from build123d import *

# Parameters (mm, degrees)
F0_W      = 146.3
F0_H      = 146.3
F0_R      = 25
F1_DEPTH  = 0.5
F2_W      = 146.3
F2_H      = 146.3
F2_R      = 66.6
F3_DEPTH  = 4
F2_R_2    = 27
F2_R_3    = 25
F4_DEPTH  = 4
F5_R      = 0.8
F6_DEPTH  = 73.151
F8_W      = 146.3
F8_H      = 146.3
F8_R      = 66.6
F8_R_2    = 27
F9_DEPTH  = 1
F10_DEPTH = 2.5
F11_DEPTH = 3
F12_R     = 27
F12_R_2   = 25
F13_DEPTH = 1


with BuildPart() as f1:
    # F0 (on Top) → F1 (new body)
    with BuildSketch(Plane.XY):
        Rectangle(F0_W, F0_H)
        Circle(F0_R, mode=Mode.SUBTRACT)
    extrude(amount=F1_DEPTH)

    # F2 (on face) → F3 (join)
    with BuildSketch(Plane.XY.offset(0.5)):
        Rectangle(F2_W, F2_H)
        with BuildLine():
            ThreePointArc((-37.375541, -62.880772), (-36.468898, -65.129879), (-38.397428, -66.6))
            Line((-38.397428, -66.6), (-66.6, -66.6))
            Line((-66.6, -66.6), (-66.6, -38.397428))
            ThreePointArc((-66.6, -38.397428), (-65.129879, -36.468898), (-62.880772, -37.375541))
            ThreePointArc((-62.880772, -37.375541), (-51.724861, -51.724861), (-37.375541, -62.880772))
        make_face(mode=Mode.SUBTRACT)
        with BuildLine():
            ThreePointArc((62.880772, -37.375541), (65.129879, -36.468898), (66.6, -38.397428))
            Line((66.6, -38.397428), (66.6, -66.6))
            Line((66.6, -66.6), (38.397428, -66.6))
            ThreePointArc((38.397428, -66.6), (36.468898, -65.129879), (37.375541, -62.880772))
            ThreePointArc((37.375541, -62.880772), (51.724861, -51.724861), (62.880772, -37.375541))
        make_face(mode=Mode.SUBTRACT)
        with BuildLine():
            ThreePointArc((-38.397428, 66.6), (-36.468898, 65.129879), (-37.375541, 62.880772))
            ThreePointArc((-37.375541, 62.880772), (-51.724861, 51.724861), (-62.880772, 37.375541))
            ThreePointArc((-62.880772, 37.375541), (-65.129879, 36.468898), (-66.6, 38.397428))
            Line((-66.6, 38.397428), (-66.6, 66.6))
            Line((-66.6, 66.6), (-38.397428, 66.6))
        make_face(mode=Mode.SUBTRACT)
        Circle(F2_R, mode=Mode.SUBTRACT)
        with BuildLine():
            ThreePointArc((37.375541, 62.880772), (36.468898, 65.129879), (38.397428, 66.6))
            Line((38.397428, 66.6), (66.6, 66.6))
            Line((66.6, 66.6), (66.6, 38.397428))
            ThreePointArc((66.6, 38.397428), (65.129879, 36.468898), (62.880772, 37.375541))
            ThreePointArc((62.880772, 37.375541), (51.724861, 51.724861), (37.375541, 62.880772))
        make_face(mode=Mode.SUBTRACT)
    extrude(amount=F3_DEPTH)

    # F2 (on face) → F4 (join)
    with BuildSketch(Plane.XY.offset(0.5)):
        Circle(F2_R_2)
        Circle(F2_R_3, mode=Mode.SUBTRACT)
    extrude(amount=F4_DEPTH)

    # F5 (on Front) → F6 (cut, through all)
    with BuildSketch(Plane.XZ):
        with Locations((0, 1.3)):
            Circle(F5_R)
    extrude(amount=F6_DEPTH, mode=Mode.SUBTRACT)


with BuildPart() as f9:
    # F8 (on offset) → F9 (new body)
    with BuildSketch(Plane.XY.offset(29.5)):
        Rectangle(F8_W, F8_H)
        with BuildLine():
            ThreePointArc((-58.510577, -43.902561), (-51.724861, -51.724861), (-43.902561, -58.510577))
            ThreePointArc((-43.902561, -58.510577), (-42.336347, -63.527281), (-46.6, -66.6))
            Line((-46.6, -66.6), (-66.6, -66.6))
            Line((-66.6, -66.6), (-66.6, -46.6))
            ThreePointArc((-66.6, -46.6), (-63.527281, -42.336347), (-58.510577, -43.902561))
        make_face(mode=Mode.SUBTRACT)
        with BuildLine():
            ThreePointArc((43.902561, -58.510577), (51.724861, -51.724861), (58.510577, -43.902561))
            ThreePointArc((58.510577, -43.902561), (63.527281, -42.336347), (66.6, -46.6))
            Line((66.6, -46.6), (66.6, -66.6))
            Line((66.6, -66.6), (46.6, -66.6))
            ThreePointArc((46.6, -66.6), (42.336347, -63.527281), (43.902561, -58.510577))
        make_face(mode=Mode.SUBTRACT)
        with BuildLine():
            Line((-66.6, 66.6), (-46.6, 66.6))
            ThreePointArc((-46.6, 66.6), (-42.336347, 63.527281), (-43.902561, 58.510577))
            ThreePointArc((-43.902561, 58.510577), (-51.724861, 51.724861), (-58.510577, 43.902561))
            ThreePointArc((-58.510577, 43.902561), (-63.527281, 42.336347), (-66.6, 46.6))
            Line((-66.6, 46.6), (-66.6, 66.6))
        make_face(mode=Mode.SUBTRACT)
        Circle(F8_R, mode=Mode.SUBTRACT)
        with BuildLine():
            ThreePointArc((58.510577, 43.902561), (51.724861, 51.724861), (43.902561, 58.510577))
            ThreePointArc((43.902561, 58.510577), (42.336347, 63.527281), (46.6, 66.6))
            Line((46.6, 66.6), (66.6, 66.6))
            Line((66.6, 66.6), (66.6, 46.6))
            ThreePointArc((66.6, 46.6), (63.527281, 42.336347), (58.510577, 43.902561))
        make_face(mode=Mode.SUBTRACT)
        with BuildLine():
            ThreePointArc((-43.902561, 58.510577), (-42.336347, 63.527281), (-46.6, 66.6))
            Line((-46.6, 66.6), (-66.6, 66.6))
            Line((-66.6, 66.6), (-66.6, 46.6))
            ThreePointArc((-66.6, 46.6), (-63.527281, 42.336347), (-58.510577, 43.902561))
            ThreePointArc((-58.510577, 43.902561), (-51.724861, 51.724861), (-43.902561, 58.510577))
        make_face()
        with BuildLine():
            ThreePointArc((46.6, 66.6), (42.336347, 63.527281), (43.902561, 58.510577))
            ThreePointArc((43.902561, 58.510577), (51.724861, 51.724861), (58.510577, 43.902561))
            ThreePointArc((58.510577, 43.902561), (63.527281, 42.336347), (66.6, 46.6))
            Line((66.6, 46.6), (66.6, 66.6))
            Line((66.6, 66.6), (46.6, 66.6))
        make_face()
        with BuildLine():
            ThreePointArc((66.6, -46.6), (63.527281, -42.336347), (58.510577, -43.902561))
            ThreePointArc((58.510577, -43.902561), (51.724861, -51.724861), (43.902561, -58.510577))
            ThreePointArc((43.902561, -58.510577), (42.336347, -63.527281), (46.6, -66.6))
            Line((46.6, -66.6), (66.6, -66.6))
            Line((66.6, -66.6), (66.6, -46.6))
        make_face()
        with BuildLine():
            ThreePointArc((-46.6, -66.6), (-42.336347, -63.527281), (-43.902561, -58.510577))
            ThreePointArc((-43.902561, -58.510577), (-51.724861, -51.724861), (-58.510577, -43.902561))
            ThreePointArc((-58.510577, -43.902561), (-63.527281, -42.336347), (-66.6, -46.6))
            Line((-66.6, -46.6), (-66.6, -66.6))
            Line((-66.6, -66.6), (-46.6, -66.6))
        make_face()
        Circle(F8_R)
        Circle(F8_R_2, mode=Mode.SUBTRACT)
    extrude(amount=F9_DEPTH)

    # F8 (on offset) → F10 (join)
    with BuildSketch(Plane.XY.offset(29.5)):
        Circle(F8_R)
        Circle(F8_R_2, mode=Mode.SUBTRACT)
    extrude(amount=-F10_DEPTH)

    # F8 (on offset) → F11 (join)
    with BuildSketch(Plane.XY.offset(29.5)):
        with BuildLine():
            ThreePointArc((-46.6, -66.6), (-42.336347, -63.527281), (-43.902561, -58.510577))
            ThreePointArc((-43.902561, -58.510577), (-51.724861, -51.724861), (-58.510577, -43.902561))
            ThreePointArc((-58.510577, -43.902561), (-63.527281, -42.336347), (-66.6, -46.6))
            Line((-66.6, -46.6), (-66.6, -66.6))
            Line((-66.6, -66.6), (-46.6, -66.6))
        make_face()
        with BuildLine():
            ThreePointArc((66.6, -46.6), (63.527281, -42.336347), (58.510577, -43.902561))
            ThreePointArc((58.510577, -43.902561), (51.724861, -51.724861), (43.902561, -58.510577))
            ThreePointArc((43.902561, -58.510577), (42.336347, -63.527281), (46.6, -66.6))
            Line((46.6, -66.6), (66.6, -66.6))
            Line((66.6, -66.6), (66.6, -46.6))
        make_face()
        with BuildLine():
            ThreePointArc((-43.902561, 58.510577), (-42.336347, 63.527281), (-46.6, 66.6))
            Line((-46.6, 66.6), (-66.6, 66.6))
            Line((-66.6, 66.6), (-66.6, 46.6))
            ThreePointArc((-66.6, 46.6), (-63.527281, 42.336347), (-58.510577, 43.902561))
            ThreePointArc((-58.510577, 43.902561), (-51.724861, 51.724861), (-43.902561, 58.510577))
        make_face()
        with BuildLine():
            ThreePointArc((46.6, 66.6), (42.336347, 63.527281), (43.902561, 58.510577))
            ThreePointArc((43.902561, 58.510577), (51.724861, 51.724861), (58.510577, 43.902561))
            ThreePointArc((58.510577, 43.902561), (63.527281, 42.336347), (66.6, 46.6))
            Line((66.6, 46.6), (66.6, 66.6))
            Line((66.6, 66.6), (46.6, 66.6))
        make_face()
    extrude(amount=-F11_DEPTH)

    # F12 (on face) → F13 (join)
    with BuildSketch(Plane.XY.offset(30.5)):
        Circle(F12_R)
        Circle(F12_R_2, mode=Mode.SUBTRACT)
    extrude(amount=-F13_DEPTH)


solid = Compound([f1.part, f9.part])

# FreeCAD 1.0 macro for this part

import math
import FreeCAD as App
import Part
import Sketcher
Q = App.Units.Quantity


def add_polygon(sketch, points):
    """Adds a closed chain of lines whose ends are joined by coincident constraints."""
    first, n = sketch.GeometryCount, len(points)
    for a, b in zip(points, points[1:] + points[:1]):
        sketch.addGeometry(Part.LineSegment(App.Vector(*a, 0), App.Vector(*b, 0)), False)
    for i in range(n):
        sketch.addConstraint(Sketcher.Constraint("Coincident", first + i, 2, first + (i + 1) % n, 1))

doc = App.newDocument("Part")
body = doc.addObject("PartDesign::Body", "Body")

sketch1 = body.newObject("Sketcher::SketchObject", "Sketch")
sketch1.AttachmentSupport = (doc.getObject("XY_Plane"), [""])
sketch1.MapMode = "FlatFace"
add_polygon(sketch1, [(-73, 73), (-73, -73), (73, -73), (73, 73)])
sketch1.addGeometry(Part.Circle(App.Vector(0, 0, 0), App.Vector(0, 0, 1), 25), False)
sketch1.addConstraint([
    Sketcher.Constraint("Vertical", 0),
    Sketcher.Constraint("Horizontal", 1),
    Sketcher.Constraint("Vertical", 2),
    Sketcher.Constraint("Horizontal", 3),
    Sketcher.Constraint("Coincident", 4, 3, -1, 1),
    Sketcher.Constraint("Symmetric", 0, 2, 2, 2, -1, 1),
    Sketcher.Constraint("Equal", 3, 0),
    Sketcher.Constraint("Diameter", 4, Q("50 mm")),
    Sketcher.Constraint("DistanceX", 1, 1, 1, 2, Q("146.3 mm")),
])
pad1 = body.newObject("PartDesign::Pad", "Pad")
pad1.Profile = sketch1
pad1.Length = 0.5

sketch2 = body.newObject("Sketcher::SketchObject", "Sketch001")
sketch2.AttachmentSupport = (doc.getObject("XY_Plane"), [""])
sketch2.MapMode = "FlatFace"
sketch2.AttachmentOffset = App.Placement(App.Vector(0, 0, 0.5), App.Rotation())
add_polygon(sketch2, [(-73.15, 73.15), (-73.15, -73.15), (73.15, -73.15), (73.15, 73.15)])
sketch2.addGeometry(Part.ArcOfCircle(Part.Circle(App.Vector(0.00001, 0.00001, 0), App.Vector(0, 0, 1), 73.150014), math.radians(-149.273279), math.radians(-120.726721)), False)
sketch2.addGeometry(Part.ArcOfCircle(Part.Circle(App.Vector(-38.397428, -64.6, 0), App.Vector(0, 0, 1), 2), math.radians(-90.000005), math.radians(59.273304)), False)
sketch2.addGeometry(Part.LineSegment(App.Vector(-38.397428, -66.6, 0), App.Vector(-66.6, -66.6, 0)), False)
sketch2.addGeometry(Part.LineSegment(App.Vector(-66.6, -66.6, 0), App.Vector(-66.6, -38.397428, 0)), False)
sketch2.addGeometry(Part.ArcOfCircle(Part.Circle(App.Vector(-64.6, -38.397428, 0), App.Vector(0, 0, 1), 2), math.radians(30.726696), math.radians(180.000005)), False)
sketch2.addGeometry(Part.ArcOfCircle(Part.Circle(App.Vector(-0.00001, 0.00001, 0), App.Vector(0, 0, 1), 73.150014), math.radians(-59.273279), math.radians(-30.726721)), False)
sketch2.addGeometry(Part.ArcOfCircle(Part.Circle(App.Vector(64.6, -38.397428, 0), App.Vector(0, 0, 1), 2), math.radians(-0.000005), math.radians(149.273304)), False)
sketch2.addGeometry(Part.LineSegment(App.Vector(66.6, -38.397428, 0), App.Vector(66.6, -66.6, 0)), False)
sketch2.addGeometry(Part.LineSegment(App.Vector(66.6, -66.6, 0), App.Vector(38.397428, -66.6, 0)), False)
sketch2.addGeometry(Part.ArcOfCircle(Part.Circle(App.Vector(38.397428, -64.6, 0), App.Vector(0, 0, 1), 2), math.radians(120.726696), math.radians(270.000005)), False)
sketch2.addGeometry(Part.LineSegment(App.Vector(-66.6, 66.6, 0), App.Vector(-38.397428, 66.6, 0)), False)
sketch2.addGeometry(Part.ArcOfCircle(Part.Circle(App.Vector(-38.397428, 64.6, 0), App.Vector(0, 0, 1), 2), math.radians(-59.273304), math.radians(90.000005)), False)
sketch2.addGeometry(Part.ArcOfCircle(Part.Circle(App.Vector(0.00001, -0.00001, 0), App.Vector(0, 0, 1), 73.150014), math.radians(120.726721), math.radians(149.273279)), False)
sketch2.addGeometry(Part.ArcOfCircle(Part.Circle(App.Vector(-64.6, 38.397428, 0), App.Vector(0, 0, 1), 2), math.radians(179.999995), math.radians(329.273304)), False)
sketch2.addGeometry(Part.LineSegment(App.Vector(-66.6, 38.397428, 0), App.Vector(-66.6, 66.6, 0)), False)
sketch2.addGeometry(Part.Circle(App.Vector(0, 0, 0), App.Vector(0, 0, 1), 66.6), False)
sketch2.addGeometry(Part.ArcOfCircle(Part.Circle(App.Vector(-0.00001, -0.00001, 0), App.Vector(0, 0, 1), 73.150014), math.radians(30.726721), math.radians(59.273279)), False)
sketch2.addGeometry(Part.ArcOfCircle(Part.Circle(App.Vector(38.397428, 64.6, 0), App.Vector(0, 0, 1), 2), math.radians(89.999995), math.radians(239.273304)), False)
sketch2.addGeometry(Part.LineSegment(App.Vector(38.397428, 66.6, 0), App.Vector(66.6, 66.6, 0)), False)
sketch2.addGeometry(Part.LineSegment(App.Vector(66.6, 66.6, 0), App.Vector(66.6, 38.397428, 0)), False)
sketch2.addGeometry(Part.ArcOfCircle(Part.Circle(App.Vector(64.6, 38.397428, 0), App.Vector(0, 0, 1), 2), math.radians(-149.273304), math.radians(0.000005)), False)
sketch2.addConstraint([
    Sketcher.Constraint("Tangent", 4, 2, 5, 2),
    Sketcher.Constraint("Tangent", 5, 1, 6, 1),
    Sketcher.Constraint("Coincident", 6, 2, 7, 1),
    Sketcher.Constraint("Tangent", 7, 2, 8, 2),
    Sketcher.Constraint("Tangent", 8, 1, 4, 1),
    Sketcher.Constraint("Tangent", 9, 2, 10, 2),
    Sketcher.Constraint("Tangent", 10, 1, 11, 1),
    Sketcher.Constraint("Coincident", 11, 2, 12, 1),
    Sketcher.Constraint("Tangent", 12, 2, 13, 2),
    Sketcher.Constraint("Tangent", 13, 1, 9, 1),
    Sketcher.Constraint("Tangent", 14, 2, 15, 2),
    Sketcher.Constraint("Tangent", 15, 1, 16, 1),
    Sketcher.Constraint("Tangent", 16, 2, 17, 2),
    Sketcher.Constraint("Tangent", 17, 1, 18, 1),
    Sketcher.Constraint("Coincident", 18, 2, 14, 1),
    Sketcher.Constraint("Tangent", 20, 2, 21, 2),
    Sketcher.Constraint("Tangent", 21, 1, 22, 1),
    Sketcher.Constraint("Coincident", 22, 2, 23, 1),
    Sketcher.Constraint("Tangent", 23, 2, 24, 2),
    Sketcher.Constraint("Tangent", 24, 1, 20, 1),
    Sketcher.Constraint("Vertical", 0),
    Sketcher.Constraint("Horizontal", 1),
    Sketcher.Constraint("Vertical", 2),
    Sketcher.Constraint("Horizontal", 3),
    Sketcher.Constraint("Horizontal", 6),
    Sketcher.Constraint("Vertical", 7),
    Sketcher.Constraint("Vertical", 11),
    Sketcher.Constraint("Horizontal", 12),
    Sketcher.Constraint("Horizontal", 14),
    Sketcher.Constraint("Vertical", 18),
    Sketcher.Constraint("Horizontal", 22),
    Sketcher.Constraint("Vertical", 23),
    Sketcher.Constraint("Coincident", 19, 3, -1, 1),
    Sketcher.Constraint("Equal", 5, 8),
    Sketcher.Constraint("Equal", 4, 9),
    Sketcher.Constraint("Equal", 8, 10),
    Sketcher.Constraint("Equal", 10, 13),
    Sketcher.Constraint("Equal", 13, 15),
    Sketcher.Constraint("Equal", 9, 16),
    Sketcher.Constraint("Equal", 15, 17),
    Sketcher.Constraint("Equal", 16, 20),
    Sketcher.Constraint("Equal", 17, 21),
    Sketcher.Constraint("Equal", 21, 24),
    Sketcher.Constraint("Symmetric", 13, 3, 15, 3, -1, 1),
    Sketcher.Constraint("Symmetric", 10, 3, 17, 3, -1, 1),
    Sketcher.Constraint("Symmetric", 4, 3, 20, 3, -1, 1),
    Sketcher.Constraint("Symmetric", 0, 2, 2, 2, -1, 1),
    Sketcher.Constraint("Symmetric", 6, 2, 22, 2, -1, 1),
    Sketcher.Constraint("Symmetric", 4, 3, 9, 3, -2),
    Sketcher.Constraint("Symmetric", 6, 2, 11, 2, -2),
    Sketcher.Constraint("Equal", 3, 0),
    Sketcher.Constraint("Equal", 22, 7),
    Sketcher.Constraint("Radius", 5, Q("2 mm")),
    Sketcher.Constraint("Diameter", 19, Q("133.2 mm")),
    Sketcher.Constraint("DistanceX", 1, 1, 1, 2, Q("146.3 mm")),
    Sketcher.Constraint("DistanceY", 5, 3, -1, 1, Q("64.6 mm")),
    Sketcher.Constraint("DistanceX", 8, 3, -1, 1, Q("64.6 mm")),
    Sketcher.Constraint("Radius", 4, Q("73.150014 mm")),
    Sketcher.Constraint("DistanceX", 6, 2, 6, 1, Q("28.202572 mm")),
])
pad2 = body.newObject("PartDesign::Pad", "Pad001")
pad2.Profile = sketch2
pad2.Length = 4

sketch3 = body.newObject("Sketcher::SketchObject", "Sketch002")
sketch3.AttachmentSupport = (doc.getObject("XY_Plane"), [""])
sketch3.MapMode = "FlatFace"
sketch3.AttachmentOffset = App.Placement(App.Vector(0, 0, 0.5), App.Rotation())
sketch3.addGeometry([
    Part.Circle(App.Vector(0, 0, 0), App.Vector(0, 0, 1), 27),
    Part.Circle(App.Vector(0, 0, 0), App.Vector(0, 0, 1), 25),
], False)
sketch3.addConstraint([
    Sketcher.Constraint("Coincident", 0, 3, -1, 1),
    Sketcher.Constraint("Coincident", 1, 3, -1, 1),
    Sketcher.Constraint("Diameter", 0, Q("54 mm")),
    Sketcher.Constraint("Diameter", 1, Q("50 mm")),
])
pad3 = body.newObject("PartDesign::Pad", "Pad002")
pad3.Profile = sketch3
pad3.Length = 4

sketch4 = body.newObject("Sketcher::SketchObject", "Sketch003")
sketch4.AttachmentSupport = (doc.getObject("XZ_Plane"), [""])
sketch4.MapMode = "FlatFace"
sketch4.addGeometry(Part.Circle(App.Vector(0, 1.3, 0), App.Vector(0, 0, 1), 0.8), False)
sketch4.addConstraint([
    Sketcher.Constraint("PointOnObject", 0, 3, -2),
    Sketcher.Constraint("Diameter", 0, Q("1.6 mm")),
    Sketcher.Constraint("DistanceY", -1, 1, 0, 3, Q("1.3 mm")),
])
pocket1 = body.newObject("PartDesign::Pocket", "Pocket")
pocket1.Profile = sketch4
pocket1.Type = "ThroughAll"
pocket1.Reversed = True
body2 = doc.addObject("PartDesign::Body", "Body001")

sketch5 = body2.newObject("Sketcher::SketchObject", "Sketch004")
sketch5.AttachmentSupport = (doc.getObject("XY_Plane001"), [""])
sketch5.MapMode = "FlatFace"
sketch5.AttachmentOffset = App.Placement(App.Vector(0, 0, 29.5), App.Rotation())
add_polygon(sketch5, [(-73, 73), (-73, -73), (73, -73), (73, 73)])
sketch5.addGeometry(Part.Circle(App.Vector(0, 0, 0), App.Vector(0, 0, 1), 27), False)
sketch5.addConstraint([
    Sketcher.Constraint("Vertical", 0),
    Sketcher.Constraint("Horizontal", 1),
    Sketcher.Constraint("Vertical", 2),
    Sketcher.Constraint("Horizontal", 3),
    Sketcher.Constraint("Coincident", 4, 3, -1, 1),
    Sketcher.Constraint("Symmetric", 0, 2, 2, 2, -1, 1),
    Sketcher.Constraint("Equal", 3, 0),
    Sketcher.Constraint("Diameter", 4, Q("54 mm")),
    Sketcher.Constraint("DistanceX", 1, 1, 1, 2, Q("146.3 mm")),
])
pad4 = body2.newObject("PartDesign::Pad", "Pad003")
pad4.Profile = sketch5
pad4.Length = 1

sketch6 = body2.newObject("Sketcher::SketchObject", "Sketch005")
sketch6.AttachmentSupport = (doc.getObject("XY_Plane001"), [""])
sketch6.MapMode = "FlatFace"
sketch6.AttachmentOffset = App.Placement(App.Vector(0, 0, 29.5), App.Rotation())
sketch6.addGeometry([
    Part.Circle(App.Vector(0, 0, 0), App.Vector(0, 0, 1), 67),
    Part.Circle(App.Vector(0, 0, 0), App.Vector(0, 0, 1), 27),
], False)
sketch6.addConstraint([
    Sketcher.Constraint("Coincident", 0, 3, -1, 1),
    Sketcher.Constraint("Coincident", 1, 3, -1, 1),
    Sketcher.Constraint("Diameter", 1, Q("54 mm")),
    Sketcher.Constraint("Diameter", 0, Q("133.2 mm")),
])
pad5 = body2.newObject("PartDesign::Pad", "Pad004")
pad5.Profile = sketch6
pad5.Length = 2.5
pad5.Reversed = True

sketch7 = body2.newObject("Sketcher::SketchObject", "Sketch006")
sketch7.AttachmentSupport = (doc.getObject("XY_Plane001"), [""])
sketch7.MapMode = "FlatFace"
sketch7.AttachmentOffset = App.Placement(App.Vector(0, 0, 29.5), App.Rotation())
sketch7.addGeometry([
    Part.ArcOfCircle(Part.Circle(App.Vector(-46.6, -62.1, 0), App.Vector(0, 0, 1), 4.5), math.radians(-90), math.radians(53)),
    Part.ArcOfCircle(Part.Circle(App.Vector(0, 0, 0), App.Vector(0, 0, 1), 73.1), math.radians(-143.12), math.radians(-126.88)),
    Part.ArcOfCircle(Part.Circle(App.Vector(-62.1, -46.6, 0), App.Vector(0, 0, 1), 4.5), math.radians(37), math.radians(180)),
    Part.LineSegment(App.Vector(-66.6, -46.6, 0), App.Vector(-66.6, -66.6, 0)),
    Part.LineSegment(App.Vector(-66.6, -66.6, 0), App.Vector(-46.6, -66.6, 0)),
    Part.ArcOfCircle(Part.Circle(App.Vector(62.1, -46.6, 0), App.Vector(0, 0, 1), 4.5), math.radians(0), math.radians(143)),
    Part.ArcOfCircle(Part.Circle(App.Vector(0, 0, 0), App.Vector(0, 0, 1), 73.1), math.radians(-53.12), math.radians(-36.88)),
    Part.ArcOfCircle(Part.Circle(App.Vector(46.6, -62.1, 0), App.Vector(0, 0, 1), 4.5), math.radians(127), math.radians(270)),
    Part.LineSegment(App.Vector(46.6, -66.6, 0), App.Vector(66.6, -66.6, 0)),
    Part.LineSegment(App.Vector(66.6, -66.6, 0), App.Vector(66.6, -46.6, 0)),
    Part.ArcOfCircle(Part.Circle(App.Vector(-46.6, 62.1, 0), App.Vector(0, 0, 1), 4.5), math.radians(-53), math.radians(90)),
    Part.LineSegment(App.Vector(-46.6, 66.6, 0), App.Vector(-66.6, 66.6, 0)),
    Part.LineSegment(App.Vector(-66.6, 66.6, 0), App.Vector(-66.6, 46.6, 0)),
    Part.ArcOfCircle(Part.Circle(App.Vector(-62.1, 46.6, 0), App.Vector(0, 0, 1), 4.5), math.radians(180), math.radians(323)),
    Part.ArcOfCircle(Part.Circle(App.Vector(0, 0, 0), App.Vector(0, 0, 1), 73.1), math.radians(126.88), math.radians(143.12)),
    Part.ArcOfCircle(Part.Circle(App.Vector(46.6, 62.1, 0), App.Vector(0, 0, 1), 4.5), math.radians(90), math.radians(233)),
    Part.ArcOfCircle(Part.Circle(App.Vector(0, 0, 0), App.Vector(0, 0, 1), 73.1), math.radians(36.88), math.radians(53.12)),
    Part.ArcOfCircle(Part.Circle(App.Vector(62.1, 46.6, 0), App.Vector(0, 0, 1), 4.5), math.radians(-143), math.radians(0)),
    Part.LineSegment(App.Vector(66.6, 46.6, 0), App.Vector(66.6, 66.6, 0)),
    Part.LineSegment(App.Vector(66.6, 66.6, 0), App.Vector(46.6, 66.6, 0)),
], False)
sketch7.addConstraint([
    Sketcher.Constraint("Tangent", 0, 2, 1, 2),
    Sketcher.Constraint("Tangent", 1, 1, 2, 1),
    Sketcher.Constraint("Tangent", 2, 2, 3, 1),
    Sketcher.Constraint("Coincident", 3, 2, 4, 1),
    Sketcher.Constraint("Tangent", 4, 2, 0, 1),
    Sketcher.Constraint("Tangent", 5, 2, 6, 2),
    Sketcher.Constraint("Tangent", 6, 1, 7, 1),
    Sketcher.Constraint("Tangent", 7, 2, 8, 1),
    Sketcher.Constraint("Coincident", 8, 2, 9, 1),
    Sketcher.Constraint("Tangent", 9, 2, 5, 1),
    Sketcher.Constraint("Tangent", 10, 2, 11, 1),
    Sketcher.Constraint("Coincident", 11, 2, 12, 1),
    Sketcher.Constraint("Tangent", 12, 2, 13, 1),
    Sketcher.Constraint("Tangent", 13, 2, 14, 2),
    Sketcher.Constraint("Tangent", 14, 1, 10, 1),
    Sketcher.Constraint("Tangent", 15, 2, 16, 2),
    Sketcher.Constraint("Tangent", 16, 1, 17, 1),
    Sketcher.Constraint("Tangent", 17, 2, 18, 1),
    Sketcher.Constraint("Coincident", 18, 2, 19, 1),
    Sketcher.Constraint("Tangent", 19, 2, 15, 1),
    Sketcher.Constraint("Vertical", 3),
    Sketcher.Constraint("Horizontal", 4),
    Sketcher.Constraint("Horizontal", 8),
    Sketcher.Constraint("Vertical", 9),
    Sketcher.Constraint("Horizontal", 11),
    Sketcher.Constraint("Vertical", 12),
    Sketcher.Constraint("Vertical", 18),
    Sketcher.Constraint("Horizontal", 19),
    Sketcher.Constraint("Coincident", 1, 3, -1, 1),
    Sketcher.Constraint("Coincident", 6, 3, -1, 1),
    Sketcher.Constraint("Coincident", 14, 3, -1, 1),
    Sketcher.Constraint("Coincident", 16, 3, -1, 1),
    Sketcher.Constraint("Equal", 0, 2),
    Sketcher.Constraint("Equal", 2, 5),
    Sketcher.Constraint("Equal", 1, 6),
    Sketcher.Constraint("Equal", 5, 7),
    Sketcher.Constraint("Equal", 7, 10),
    Sketcher.Constraint("Equal", 10, 13),
    Sketcher.Constraint("Equal", 6, 14),
    Sketcher.Constraint("Equal", 13, 15),
    Sketcher.Constraint("Equal", 14, 16),
    Sketcher.Constraint("Equal", 15, 17),
    Sketcher.Constraint("Symmetric", 8, 2, 11, 2, -1, 1),
    Sketcher.Constraint("Symmetric", 3, 2, 18, 2, -1, 1),
    Sketcher.Constraint("Symmetric", 3, 2, 8, 2, -2),
    Sketcher.Constraint("Equal", 19, 3),
    Sketcher.Constraint("DistanceX", 4, 1, 4, 2, Q("20 mm")),
    Sketcher.Constraint("DistanceX", 0, 3, -1, 1, Q("46.6 mm")),
    Sketcher.Constraint("Radius", 0, Q("4.494445 mm")),
])
pad6 = body2.newObject("PartDesign::Pad", "Pad005")
pad6.Profile = sketch7
pad6.Length = 3
pad6.Reversed = True

sketch8 = body2.newObject("Sketcher::SketchObject", "Sketch007")
sketch8.AttachmentSupport = (doc.getObject("XY_Plane001"), [""])
sketch8.MapMode = "FlatFace"
sketch8.AttachmentOffset = App.Placement(App.Vector(0, 0, 30.5), App.Rotation())
sketch8.addGeometry([
    Part.Circle(App.Vector(0, 0, 0), App.Vector(0, 0, 1), 27),
    Part.Circle(App.Vector(0, 0, 0), App.Vector(0, 0, 1), 25),
], False)
sketch8.addConstraint([
    Sketcher.Constraint("Coincident", 0, 3, -1, 1),
    Sketcher.Constraint("Coincident", 1, 3, -1, 1),
    Sketcher.Constraint("Diameter", 0, Q("54 mm")),
    Sketcher.Constraint("Diameter", 1, Q("50 mm")),
])
pad7 = body2.newObject("PartDesign::Pad", "Pad006")
pad7.Profile = sketch8
pad7.Length = 1
pad7.Reversed = True

doc.recompute()
